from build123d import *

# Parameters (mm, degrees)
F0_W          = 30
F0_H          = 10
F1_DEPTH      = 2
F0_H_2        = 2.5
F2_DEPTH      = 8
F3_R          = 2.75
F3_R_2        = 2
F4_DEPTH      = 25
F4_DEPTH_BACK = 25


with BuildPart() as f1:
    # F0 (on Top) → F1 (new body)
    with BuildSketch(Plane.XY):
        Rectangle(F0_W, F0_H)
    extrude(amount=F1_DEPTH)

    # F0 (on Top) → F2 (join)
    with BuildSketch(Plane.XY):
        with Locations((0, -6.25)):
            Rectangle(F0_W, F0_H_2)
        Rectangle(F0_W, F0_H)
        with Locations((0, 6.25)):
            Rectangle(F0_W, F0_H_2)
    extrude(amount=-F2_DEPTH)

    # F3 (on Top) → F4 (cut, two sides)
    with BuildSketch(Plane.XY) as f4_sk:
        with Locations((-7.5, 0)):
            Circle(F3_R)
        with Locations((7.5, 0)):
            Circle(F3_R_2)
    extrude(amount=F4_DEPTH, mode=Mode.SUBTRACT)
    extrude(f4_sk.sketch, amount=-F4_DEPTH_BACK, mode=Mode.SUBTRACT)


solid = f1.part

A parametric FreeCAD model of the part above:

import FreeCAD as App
import Part
import Sketcher
Q = App.Units.Quantity

doc = App.newDocument("Part")
body = doc.addObject("PartDesign::Body", "Body")

sketch1 = doc.addObject("Sketcher::SketchObject", "Sketch")
body.addObject(sketch1)
sketch1.AttachmentSupport = (doc.XY_Plane, [""])
sketch1.MapMode = "FlatFace"
sketch1.addGeometry(Part.LineSegment(App.Vector(-15, 5, 0), App.Vector(-15, -5, 0)), False)
sketch1.addGeometry(Part.LineSegment(App.Vector(-15, -5, 0), App.Vector(15, -5, 0)), False)
sketch1.addGeometry(Part.LineSegment(App.Vector(15, -5, 0), App.Vector(15, 5, 0)), False)
sketch1.addGeometry(Part.LineSegment(App.Vector(15, 5, 0), App.Vector(-15, 5, 0)), False)
sketch1.addConstraint(Sketcher.Constraint("Coincident", 0, 2, 1, 1))
sketch1.addConstraint(Sketcher.Constraint("Coincident", 1, 2, 2, 1))
sketch1.addConstraint(Sketcher.Constraint("Coincident", 2, 2, 3, 1))
sketch1.addConstraint(Sketcher.Constraint("Coincident", 3, 2, 0, 1))
sketch1.addConstraint(Sketcher.Constraint("Vertical", 0))
sketch1.addConstraint(Sketcher.Constraint("Horizontal", 1))
sketch1.addConstraint(Sketcher.Constraint("Vertical", 2))
sketch1.addConstraint(Sketcher.Constraint("Horizontal", 3))
sketch1.addConstraint(Sketcher.Constraint("Symmetric", 0, 2, 2, 2, -1, 1))
sketch1.addConstraint(Sketcher.Constraint("DistanceX", 1, 1, 1, 2, Q("30 mm")))
sketch1.addConstraint(Sketcher.Constraint("DistanceY", 0, 2, 0, 1, Q("10 mm")))
pad1 = doc.addObject("PartDesign::Pad", "Pad")
body.addObject(pad1)
pad1.Profile = sketch1
pad1.Length = 2

sketch2 = doc.addObject("Sketcher::SketchObject", "Sketch001")
body.addObject(sketch2)
sketch2.AttachmentSupport = (doc.XY_Plane, [""])
sketch2.MapMode = "FlatFace"
sketch2.addGeometry(Part.LineSegment(App.Vector(-15, -8, 0), App.Vector(15, -8, 0)), False)
sketch2.addGeometry(Part.LineSegment(App.Vector(15, -8, 0), App.Vector(15, 8, 0)), False)
sketch2.addGeometry(Part.LineSegment(App.Vector(15, 8, 0), App.Vector(-15, 8, 0)), False)
sketch2.addGeometry(Part.LineSegment(App.Vector(-15, 8, 0), App.Vector(-15, -8, 0)), False)
sketch2.addConstraint(Sketcher.Constraint("Coincident", 0, 2, 1, 1))
sketch2.addConstraint(Sketcher.Constraint("Coincident", 1, 2, 2, 1))
sketch2.addConstraint(Sketcher.Constraint("Coincident", 2, 2, 3, 1))
sketch2.addConstraint(Sketcher.Constraint("Coincident", 3, 2, 0, 1))
sketch2.addConstraint(Sketcher.Constraint("Horizontal", 0))
sketch2.addConstraint(Sketcher.Constraint("Vertical", 1))
sketch2.addConstraint(Sketcher.Constraint("Horizontal", 2))
sketch2.addConstraint(Sketcher.Constraint("Vertical", 3))
sketch2.addConstraint(Sketcher.Constraint("Symmetric", 0, 2, 2, 2, -1, 1))
sketch2.addConstraint(Sketcher.Constraint("DistanceX", 0, 1, 0, 2, Q("30 mm")))
sketch2.addConstraint(Sketcher.Constraint("DistanceY", 1, 1, 1, 2, Q("15 mm")))
pad2 = doc.addObject("PartDesign::Pad", "Pad001")
body.addObject(pad2)
pad2.Profile = sketch2
pad2.Length = 8
pad2.Reversed = True

sketch3 = doc.addObject("Sketcher::SketchObject", "Sketch002")
body.addObject(sketch3)
sketch3.AttachmentSupport = (doc.XY_Plane, [""])
sketch3.MapMode = "FlatFace"
sketch3.addGeometry(Part.Circle(App.Vector(-7.5, 0, 0), App.Vector(0, 0, 1), 2.8), False)
sketch3.addGeometry(Part.Circle(App.Vector(7.5, 0, 0), App.Vector(0, 0, 1), 2), False)
sketch3.addConstraint(Sketcher.Constraint("Symmetric", 0, 3, 1, 3, -1, 1))
sketch3.addConstraint(Sketcher.Constraint("PointOnObject", 0, 3, -1))
sketch3.addConstraint(Sketcher.Constraint("Diameter", 1, Q("4 mm")))
sketch3.addConstraint(Sketcher.Constraint("Diameter", 0, Q("5.5 mm")))
sketch3.addConstraint(Sketcher.Constraint("DistanceX", 0, 3, 1, 3, Q("15 mm")))
pocket1 = doc.addObject("PartDesign::Pocket", "Pocket")
body.addObject(pocket1)
pocket1.Profile = sketch3
pocket1.Type = "ThroughAll"
pocket1.Midplane = True

doc.recompute()
